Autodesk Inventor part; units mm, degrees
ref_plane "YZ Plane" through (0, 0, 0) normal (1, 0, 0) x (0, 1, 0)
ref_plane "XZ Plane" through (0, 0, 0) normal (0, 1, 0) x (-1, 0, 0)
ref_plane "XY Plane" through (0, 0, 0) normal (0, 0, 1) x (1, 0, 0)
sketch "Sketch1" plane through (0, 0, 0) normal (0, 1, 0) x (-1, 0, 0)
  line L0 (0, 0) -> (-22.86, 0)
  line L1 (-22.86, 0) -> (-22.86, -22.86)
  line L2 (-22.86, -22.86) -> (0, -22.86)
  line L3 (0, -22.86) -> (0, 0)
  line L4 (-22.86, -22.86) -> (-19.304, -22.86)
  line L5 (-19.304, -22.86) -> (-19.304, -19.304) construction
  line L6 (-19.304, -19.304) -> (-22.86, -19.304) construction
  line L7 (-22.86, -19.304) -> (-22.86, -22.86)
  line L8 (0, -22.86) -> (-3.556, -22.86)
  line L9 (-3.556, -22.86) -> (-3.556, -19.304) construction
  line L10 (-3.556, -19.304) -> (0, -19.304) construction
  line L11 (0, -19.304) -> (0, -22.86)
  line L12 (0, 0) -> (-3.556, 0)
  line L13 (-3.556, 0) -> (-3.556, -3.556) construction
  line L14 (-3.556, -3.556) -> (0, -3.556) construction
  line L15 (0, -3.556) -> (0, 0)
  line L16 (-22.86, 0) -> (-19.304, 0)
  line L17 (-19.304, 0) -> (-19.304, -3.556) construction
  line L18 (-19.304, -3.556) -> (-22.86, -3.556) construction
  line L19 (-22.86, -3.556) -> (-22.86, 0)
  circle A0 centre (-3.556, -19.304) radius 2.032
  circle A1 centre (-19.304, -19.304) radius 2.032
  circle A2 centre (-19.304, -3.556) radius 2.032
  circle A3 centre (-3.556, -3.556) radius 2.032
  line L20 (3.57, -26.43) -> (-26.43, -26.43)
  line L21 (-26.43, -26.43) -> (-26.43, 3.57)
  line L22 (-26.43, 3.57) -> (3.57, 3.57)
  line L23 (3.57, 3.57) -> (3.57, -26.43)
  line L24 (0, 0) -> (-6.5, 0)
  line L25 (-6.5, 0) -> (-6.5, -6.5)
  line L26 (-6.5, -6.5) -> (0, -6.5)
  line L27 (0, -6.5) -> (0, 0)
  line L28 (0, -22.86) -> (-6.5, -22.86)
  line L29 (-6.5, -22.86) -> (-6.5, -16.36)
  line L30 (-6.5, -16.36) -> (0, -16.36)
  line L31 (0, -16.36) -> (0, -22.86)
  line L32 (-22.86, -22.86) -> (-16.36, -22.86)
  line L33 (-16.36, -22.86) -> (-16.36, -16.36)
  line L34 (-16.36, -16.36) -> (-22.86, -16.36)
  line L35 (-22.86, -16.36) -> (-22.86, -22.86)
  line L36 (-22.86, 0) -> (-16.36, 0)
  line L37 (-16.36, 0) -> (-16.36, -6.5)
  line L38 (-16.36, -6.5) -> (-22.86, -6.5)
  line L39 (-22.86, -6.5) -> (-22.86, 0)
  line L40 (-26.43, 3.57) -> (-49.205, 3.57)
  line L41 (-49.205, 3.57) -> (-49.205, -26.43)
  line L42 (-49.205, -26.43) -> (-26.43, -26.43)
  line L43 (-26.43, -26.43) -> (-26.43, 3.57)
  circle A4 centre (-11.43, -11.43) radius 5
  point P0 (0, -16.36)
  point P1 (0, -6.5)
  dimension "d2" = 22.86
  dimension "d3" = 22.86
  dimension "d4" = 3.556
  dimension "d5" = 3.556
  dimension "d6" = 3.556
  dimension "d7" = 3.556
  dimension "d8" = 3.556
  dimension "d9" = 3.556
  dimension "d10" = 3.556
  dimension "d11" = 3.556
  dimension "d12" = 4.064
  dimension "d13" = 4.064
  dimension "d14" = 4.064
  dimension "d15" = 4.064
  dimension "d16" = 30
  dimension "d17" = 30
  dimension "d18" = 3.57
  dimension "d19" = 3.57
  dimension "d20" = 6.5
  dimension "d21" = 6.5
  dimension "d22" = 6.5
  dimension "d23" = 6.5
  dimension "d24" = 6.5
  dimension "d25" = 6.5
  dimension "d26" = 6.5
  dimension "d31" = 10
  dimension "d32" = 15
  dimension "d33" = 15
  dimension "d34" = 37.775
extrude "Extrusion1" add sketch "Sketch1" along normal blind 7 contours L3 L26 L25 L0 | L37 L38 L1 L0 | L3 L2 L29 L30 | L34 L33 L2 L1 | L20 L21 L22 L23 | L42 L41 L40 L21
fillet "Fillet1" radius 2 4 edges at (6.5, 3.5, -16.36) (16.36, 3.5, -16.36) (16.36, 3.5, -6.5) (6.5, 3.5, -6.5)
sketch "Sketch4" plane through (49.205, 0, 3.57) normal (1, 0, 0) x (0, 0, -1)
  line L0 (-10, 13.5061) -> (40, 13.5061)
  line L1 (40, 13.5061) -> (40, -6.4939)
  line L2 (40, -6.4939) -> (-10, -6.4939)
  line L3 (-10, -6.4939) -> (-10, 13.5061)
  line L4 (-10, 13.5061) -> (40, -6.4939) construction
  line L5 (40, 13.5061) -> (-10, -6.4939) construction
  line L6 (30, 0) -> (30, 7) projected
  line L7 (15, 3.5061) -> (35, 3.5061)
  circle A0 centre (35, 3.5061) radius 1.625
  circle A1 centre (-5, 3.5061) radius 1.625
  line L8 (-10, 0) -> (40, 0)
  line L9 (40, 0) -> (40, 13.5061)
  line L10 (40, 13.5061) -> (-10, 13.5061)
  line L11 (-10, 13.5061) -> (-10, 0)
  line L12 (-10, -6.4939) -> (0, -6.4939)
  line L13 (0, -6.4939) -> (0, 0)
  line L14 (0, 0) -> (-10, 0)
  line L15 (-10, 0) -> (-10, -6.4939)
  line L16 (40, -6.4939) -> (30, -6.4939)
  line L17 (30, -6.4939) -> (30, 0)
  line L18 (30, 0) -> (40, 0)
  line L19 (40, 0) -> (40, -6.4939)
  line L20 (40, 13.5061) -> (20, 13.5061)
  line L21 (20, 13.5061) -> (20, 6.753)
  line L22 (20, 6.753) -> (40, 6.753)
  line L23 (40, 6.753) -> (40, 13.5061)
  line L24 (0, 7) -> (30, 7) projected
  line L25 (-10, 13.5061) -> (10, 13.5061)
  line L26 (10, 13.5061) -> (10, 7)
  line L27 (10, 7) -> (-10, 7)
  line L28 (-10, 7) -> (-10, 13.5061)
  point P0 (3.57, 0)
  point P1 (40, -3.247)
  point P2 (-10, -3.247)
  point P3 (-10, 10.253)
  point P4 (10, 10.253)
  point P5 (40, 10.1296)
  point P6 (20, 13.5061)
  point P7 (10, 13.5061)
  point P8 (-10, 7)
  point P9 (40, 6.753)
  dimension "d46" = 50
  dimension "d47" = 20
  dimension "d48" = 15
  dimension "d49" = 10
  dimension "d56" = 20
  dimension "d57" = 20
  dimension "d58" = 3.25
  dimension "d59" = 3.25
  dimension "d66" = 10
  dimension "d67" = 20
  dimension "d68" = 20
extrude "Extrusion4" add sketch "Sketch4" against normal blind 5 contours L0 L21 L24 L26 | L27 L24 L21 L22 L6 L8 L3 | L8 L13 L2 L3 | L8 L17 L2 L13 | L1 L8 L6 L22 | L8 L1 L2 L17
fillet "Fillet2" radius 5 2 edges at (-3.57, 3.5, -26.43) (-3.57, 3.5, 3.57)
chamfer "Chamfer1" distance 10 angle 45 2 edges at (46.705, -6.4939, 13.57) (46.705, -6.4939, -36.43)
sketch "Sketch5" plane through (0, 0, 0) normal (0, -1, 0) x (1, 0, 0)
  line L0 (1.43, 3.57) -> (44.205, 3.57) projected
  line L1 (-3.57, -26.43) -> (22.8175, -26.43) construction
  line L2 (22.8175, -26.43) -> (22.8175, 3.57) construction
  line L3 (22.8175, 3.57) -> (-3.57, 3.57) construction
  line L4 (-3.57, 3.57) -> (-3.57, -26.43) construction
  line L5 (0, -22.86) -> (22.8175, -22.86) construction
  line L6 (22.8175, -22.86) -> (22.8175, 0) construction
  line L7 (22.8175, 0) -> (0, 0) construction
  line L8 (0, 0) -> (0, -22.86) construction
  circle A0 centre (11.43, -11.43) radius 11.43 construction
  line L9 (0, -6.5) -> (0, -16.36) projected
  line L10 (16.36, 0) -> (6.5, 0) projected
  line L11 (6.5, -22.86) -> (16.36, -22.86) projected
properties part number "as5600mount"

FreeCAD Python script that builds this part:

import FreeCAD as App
import Part
import Sketcher

V = App.Vector


def edges_at(feature, points):
    """Names of the edges that pass closest to the given points."""
    edges = feature.Shape.Edges
    near = lambda p: min(range(len(edges)), key=lambda i: edges[i].distToShape(Part.Vertex(*p))[0])
    return sorted({f"Edge{near(p) + 1}" for p in points})

doc = App.newDocument("Part")
body = doc.addObject("PartDesign::Body", "Body")

# Sketch on XZ plane
sketch1 = body.newObject("Sketcher::SketchObject", "Sketch")
sketch1.AttachmentSupport = (doc.getObject("XZ_Plane"), [""])
sketch1.MapMode = "FlatFace"
sketch1.addGeometry([
    Part.LineSegment(V(-3.6, -26.4, 0), V(-3.6, 3.6, 0)),  # 0
    Part.LineSegment(V(-3.6, 3.6, 0), V(49.2, 3.6, 0)),  # 1
    Part.LineSegment(V(49.2, 3.6, 0), V(49.2, -26.4, 0)),  # 2
    Part.LineSegment(V(49.2, -26.4, 0), V(-3.6, -26.4, 0)),  # 3
    Part.LineSegment(V(6.5, -6.5, 0), V(0, -6.5, 0)),  # 4
    Part.LineSegment(V(0, -6.5, 0), V(0, -16.4, 0)),  # 5
    Part.LineSegment(V(0, -16.4, 0), V(6.5, -16.4, 0)),  # 6
    Part.LineSegment(V(6.5, -16.4, 0), V(6.5, -22.9, 0)),  # 7
    Part.LineSegment(V(6.5, -22.9, 0), V(16.4, -22.9, 0)),  # 8
    Part.LineSegment(V(16.4, -22.9, 0), V(16.4, -16.4, 0)),  # 9
    Part.LineSegment(V(16.4, -16.4, 0), V(22.9, -16.4, 0)),  # 10
    Part.LineSegment(V(22.9, -16.4, 0), V(22.9, -6.5, 0)),  # 11
    Part.LineSegment(V(22.9, -6.5, 0), V(16.4, -6.5, 0)),  # 12
    Part.LineSegment(V(16.4, -6.5, 0), V(16.4, 0, 0)),  # 13
    Part.LineSegment(V(16.4, 0, 0), V(6.5, 0, 0)),  # 14
    Part.LineSegment(V(6.5, 0, 0), V(6.5, -6.5, 0)),  # 15
    Part.Circle(V(3.6, -3.6, 0), V(0, 0, 1), 2),  # 16
    Part.Circle(V(3.6, -19.3, 0), V(0, 0, 1), 2),  # 17
    Part.Circle(V(19.3, -3.6, 0), V(0, 0, 1), 2),  # 18
    Part.Circle(V(19.3, -19.3, 0), V(0, 0, 1), 2),  # 19
], False)
sketch1.addConstraint([
    Sketcher.Constraint("Coincident", 0, 2, 1, 1),
    Sketcher.Constraint("Coincident", 1, 2, 2, 1),
    Sketcher.Constraint("Coincident", 2, 2, 3, 1),
    Sketcher.Constraint("Coincident", 3, 2, 0, 1),
    Sketcher.Constraint("Coincident", 4, 2, 5, 1),
    Sketcher.Constraint("Coincident", 5, 2, 6, 1),
    Sketcher.Constraint("Coincident", 6, 2, 7, 1),
    Sketcher.Constraint("Coincident", 7, 2, 8, 1),
    Sketcher.Constraint("Coincident", 8, 2, 9, 1),
    Sketcher.Constraint("Coincident", 9, 2, 10, 1),
    Sketcher.Constraint("Coincident", 10, 2, 11, 1),
    Sketcher.Constraint("Coincident", 11, 2, 12, 1),
    Sketcher.Constraint("Coincident", 12, 2, 13, 1),
    Sketcher.Constraint("Coincident", 13, 2, 14, 1),
    Sketcher.Constraint("Coincident", 14, 2, 15, 1),
    Sketcher.Constraint("Coincident", 15, 2, 4, 1),
    Sketcher.Constraint("Vertical", 0),
    Sketcher.Constraint("Horizontal", 1),
    Sketcher.Constraint("Vertical", 2),
    Sketcher.Constraint("Horizontal", 3),
    Sketcher.Constraint("Horizontal", 4),
    Sketcher.Constraint("Vertical", 5),
    Sketcher.Constraint("Horizontal", 6),
    Sketcher.Constraint("Vertical", 7),
    Sketcher.Constraint("Horizontal", 8),
    Sketcher.Constraint("Vertical", 9),
    Sketcher.Constraint("Horizontal", 10),
    Sketcher.Constraint("Vertical", 11),
    Sketcher.Constraint("Horizontal", 12),
    Sketcher.Constraint("Vertical", 13),
    Sketcher.Constraint("Horizontal", 14),
    Sketcher.Constraint("Vertical", 15),
    Sketcher.Constraint("Equal", 16, 17),
    Sketcher.Constraint("Equal", 17, 18),
    Sketcher.Constraint("Equal", 18, 19),
    Sketcher.Constraint("PointOnObject", 4, 2, -2),
    Sketcher.Constraint("PointOnObject", 13, 2, -1),
    Sketcher.Constraint("Horizontal", 16, 3, 18, 3),
    Sketcher.Constraint("Horizontal", 17, 3, 19, 3),
    Sketcher.Constraint("Horizontal", 6, 2, 9, 2),
    Sketcher.Constraint("Horizontal", 4, 2, 11, 2),
    Sketcher.Constraint("Vertical", 16, 3, 17, 3),
    Sketcher.Constraint("Vertical", 18, 3, 19, 3),
    Sketcher.Constraint("Vertical", 9, 2, 12, 2),
    Sketcher.Constraint("Vertical", 7, 2, 14, 2),
    Sketcher.Constraint("Equal", 6, 10),
    Sketcher.Constraint("Equal", 14, 5),
    Sketcher.Constraint("Equal", 12, 7),
    Sketcher.Constraint("Equal", 9, 13),
    Sketcher.Constraint("DistanceY", 0, 1, 0, 2, 30.0),
    Sketcher.Constraint("Diameter", 16, 4.064),
    Sketcher.Constraint("DistanceX", 4, 2, 4, 1, 6.5),
    Sketcher.Constraint("DistanceX", 0, 2, -1, 1, 3.57),
    Sketcher.Constraint("DistanceY", -1, 1, 0, 2, 3.57),
    Sketcher.Constraint("DistanceY", 7, 2, -1, 1, 22.86),
    Sketcher.Constraint("DistanceX", -1, 1, 16, 3, 3.556),
    Sketcher.Constraint("DistanceY", 16, 3, -1, 1, 3.556),
    Sketcher.Constraint("DistanceY", 7, 2, 17, 3, 3.556),
    Sketcher.Constraint("DistanceX", 19, 3, 10, 2, 3.556),
    Sketcher.Constraint("DistanceX", 1, 1, 1, 2, 52.775),
])
pad1 = body.newObject("PartDesign::Pad", "Pad")
pad1.Profile = sketch1
pad1.Length = 7
pad1.Reversed = True
doc.recompute()

fillet = body.newObject("PartDesign::Fillet", "Fillet")
fillet.Base = (pad1, edges_at(pad1, [
    (6.5, 3.5, -16.36),
    (16.36, 3.5, -16.36),
    (16.36, 3.5, -6.5),
    (6.5, 3.5, -6.5),
]))
fillet.Radius = 2

# Sketch on YZ plane
sketch2 = body.newObject("Sketcher::SketchObject", "Sketch001")
sketch2.AttachmentSupport = (doc.getObject("YZ_Plane"), [""])
sketch2.MapMode = "FlatFace"
sketch2.AttachmentOffset = App.Placement(V(0, 0, 49.205), App.Rotation())
sketch2.addGeometry([
    Part.LineSegment(V(13.5, -16.4, 0), V(13.5, -6.4, 0)),  # 0
    Part.LineSegment(V(13.5, -6.4, 0), V(7, -6.4, 0)),  # 1
    Part.LineSegment(V(7, -6.4, 0), V(7, 13.6, 0)),  # 2
    Part.LineSegment(V(7, 13.6, 0), V(-6.5, 13.6, 0)),  # 3
    Part.LineSegment(V(-6.5, 13.6, 0), V(-6.5, -36.4, 0)),  # 4
    Part.LineSegment(V(-6.5, -36.4, 0), V(6.8, -36.4, 0)),  # 5
    Part.LineSegment(V(6.8, -36.4, 0), V(6.8, -16.4, 0)),  # 6
    Part.LineSegment(V(6.8, -16.4, 0), V(13.5, -16.4, 0)),  # 7
    Part.Circle(V(3.5, 8.6, 0), V(0, 0, 1), 1.6),  # 8
    Part.Circle(V(3.5, -31.4, 0), V(0, 0, 1), 1.6),  # 9
], False)
sketch2.addConstraint([
    Sketcher.Constraint("Coincident", 0, 2, 1, 1),
    Sketcher.Constraint("Coincident", 1, 2, 2, 1),
    Sketcher.Constraint("Coincident", 2, 2, 3, 1),
    Sketcher.Constraint("Coincident", 3, 2, 4, 1),
    Sketcher.Constraint("Coincident", 4, 2, 5, 1),
    Sketcher.Constraint("Coincident", 5, 2, 6, 1),
    Sketcher.Constraint("Coincident", 6, 2, 7, 1),
    Sketcher.Constraint("Coincident", 7, 2, 0, 1),
    Sketcher.Constraint("Vertical", 0),
    Sketcher.Constraint("Horizontal", 1),
    Sketcher.Constraint("Vertical", 2),
    Sketcher.Constraint("Horizontal", 3),
    Sketcher.Constraint("Vertical", 4),
    Sketcher.Constraint("Horizontal", 5),
    Sketcher.Constraint("Vertical", 6),
    Sketcher.Constraint("Horizontal", 7),
    Sketcher.Constraint("Equal", 8, 9),
    Sketcher.Constraint("Vertical", 8, 3, 9, 3),
    Sketcher.Constraint("Equal", 2, 6),
    Sketcher.Constraint("Diameter", 8, 3.25),
    Sketcher.Constraint("DistanceY", 0, 1, 0, 2, 10.0),
    Sketcher.Constraint("DistanceY", 2, 1, 2, 2, 20.0),
    Sketcher.Constraint("DistanceX", 8, 3, 0, 2, 10.0),
    Sketcher.Constraint("DistanceY", 0, 2, 8, 3, 15.0),
    Sketcher.Constraint("DistanceX", 3, 2, 8, 3, 10.0),
    Sketcher.Constraint("DistanceY", 9, 3, 6, 2, 15.0),
    Sketcher.Constraint("DistanceX", -1, 1, 1, 2, 7.0),
    Sketcher.Constraint("DistanceX", 1, 2, 1, 1, 6.506),
    Sketcher.Constraint("DistanceX", 5, 1, 5, 2, 13.247),
    Sketcher.Constraint("DistanceY", -1, 1, 8, 3, 8.57),
])
pad2 = body.newObject("PartDesign::Pad", "Pad001")
pad2.Profile = sketch2
pad2.Length = 5
pad2.Reversed = True
doc.recompute()

fillet2 = body.newObject("PartDesign::Fillet", "Fillet001")
fillet2.Base = (pad2, edges_at(pad2, [(-3.57, 3.5, -26.43), (-3.57, 3.5, 3.57)]))
fillet2.Radius = 5
doc.recompute()

chamfer = body.newObject("PartDesign::Chamfer", "Chamfer")
chamfer.Base = (fillet2, edges_at(fillet2, [(46.705, -6.494, 13.57), (46.705, -6.494, -36.43)]))
chamfer.Size = 10

doc.recompute()
